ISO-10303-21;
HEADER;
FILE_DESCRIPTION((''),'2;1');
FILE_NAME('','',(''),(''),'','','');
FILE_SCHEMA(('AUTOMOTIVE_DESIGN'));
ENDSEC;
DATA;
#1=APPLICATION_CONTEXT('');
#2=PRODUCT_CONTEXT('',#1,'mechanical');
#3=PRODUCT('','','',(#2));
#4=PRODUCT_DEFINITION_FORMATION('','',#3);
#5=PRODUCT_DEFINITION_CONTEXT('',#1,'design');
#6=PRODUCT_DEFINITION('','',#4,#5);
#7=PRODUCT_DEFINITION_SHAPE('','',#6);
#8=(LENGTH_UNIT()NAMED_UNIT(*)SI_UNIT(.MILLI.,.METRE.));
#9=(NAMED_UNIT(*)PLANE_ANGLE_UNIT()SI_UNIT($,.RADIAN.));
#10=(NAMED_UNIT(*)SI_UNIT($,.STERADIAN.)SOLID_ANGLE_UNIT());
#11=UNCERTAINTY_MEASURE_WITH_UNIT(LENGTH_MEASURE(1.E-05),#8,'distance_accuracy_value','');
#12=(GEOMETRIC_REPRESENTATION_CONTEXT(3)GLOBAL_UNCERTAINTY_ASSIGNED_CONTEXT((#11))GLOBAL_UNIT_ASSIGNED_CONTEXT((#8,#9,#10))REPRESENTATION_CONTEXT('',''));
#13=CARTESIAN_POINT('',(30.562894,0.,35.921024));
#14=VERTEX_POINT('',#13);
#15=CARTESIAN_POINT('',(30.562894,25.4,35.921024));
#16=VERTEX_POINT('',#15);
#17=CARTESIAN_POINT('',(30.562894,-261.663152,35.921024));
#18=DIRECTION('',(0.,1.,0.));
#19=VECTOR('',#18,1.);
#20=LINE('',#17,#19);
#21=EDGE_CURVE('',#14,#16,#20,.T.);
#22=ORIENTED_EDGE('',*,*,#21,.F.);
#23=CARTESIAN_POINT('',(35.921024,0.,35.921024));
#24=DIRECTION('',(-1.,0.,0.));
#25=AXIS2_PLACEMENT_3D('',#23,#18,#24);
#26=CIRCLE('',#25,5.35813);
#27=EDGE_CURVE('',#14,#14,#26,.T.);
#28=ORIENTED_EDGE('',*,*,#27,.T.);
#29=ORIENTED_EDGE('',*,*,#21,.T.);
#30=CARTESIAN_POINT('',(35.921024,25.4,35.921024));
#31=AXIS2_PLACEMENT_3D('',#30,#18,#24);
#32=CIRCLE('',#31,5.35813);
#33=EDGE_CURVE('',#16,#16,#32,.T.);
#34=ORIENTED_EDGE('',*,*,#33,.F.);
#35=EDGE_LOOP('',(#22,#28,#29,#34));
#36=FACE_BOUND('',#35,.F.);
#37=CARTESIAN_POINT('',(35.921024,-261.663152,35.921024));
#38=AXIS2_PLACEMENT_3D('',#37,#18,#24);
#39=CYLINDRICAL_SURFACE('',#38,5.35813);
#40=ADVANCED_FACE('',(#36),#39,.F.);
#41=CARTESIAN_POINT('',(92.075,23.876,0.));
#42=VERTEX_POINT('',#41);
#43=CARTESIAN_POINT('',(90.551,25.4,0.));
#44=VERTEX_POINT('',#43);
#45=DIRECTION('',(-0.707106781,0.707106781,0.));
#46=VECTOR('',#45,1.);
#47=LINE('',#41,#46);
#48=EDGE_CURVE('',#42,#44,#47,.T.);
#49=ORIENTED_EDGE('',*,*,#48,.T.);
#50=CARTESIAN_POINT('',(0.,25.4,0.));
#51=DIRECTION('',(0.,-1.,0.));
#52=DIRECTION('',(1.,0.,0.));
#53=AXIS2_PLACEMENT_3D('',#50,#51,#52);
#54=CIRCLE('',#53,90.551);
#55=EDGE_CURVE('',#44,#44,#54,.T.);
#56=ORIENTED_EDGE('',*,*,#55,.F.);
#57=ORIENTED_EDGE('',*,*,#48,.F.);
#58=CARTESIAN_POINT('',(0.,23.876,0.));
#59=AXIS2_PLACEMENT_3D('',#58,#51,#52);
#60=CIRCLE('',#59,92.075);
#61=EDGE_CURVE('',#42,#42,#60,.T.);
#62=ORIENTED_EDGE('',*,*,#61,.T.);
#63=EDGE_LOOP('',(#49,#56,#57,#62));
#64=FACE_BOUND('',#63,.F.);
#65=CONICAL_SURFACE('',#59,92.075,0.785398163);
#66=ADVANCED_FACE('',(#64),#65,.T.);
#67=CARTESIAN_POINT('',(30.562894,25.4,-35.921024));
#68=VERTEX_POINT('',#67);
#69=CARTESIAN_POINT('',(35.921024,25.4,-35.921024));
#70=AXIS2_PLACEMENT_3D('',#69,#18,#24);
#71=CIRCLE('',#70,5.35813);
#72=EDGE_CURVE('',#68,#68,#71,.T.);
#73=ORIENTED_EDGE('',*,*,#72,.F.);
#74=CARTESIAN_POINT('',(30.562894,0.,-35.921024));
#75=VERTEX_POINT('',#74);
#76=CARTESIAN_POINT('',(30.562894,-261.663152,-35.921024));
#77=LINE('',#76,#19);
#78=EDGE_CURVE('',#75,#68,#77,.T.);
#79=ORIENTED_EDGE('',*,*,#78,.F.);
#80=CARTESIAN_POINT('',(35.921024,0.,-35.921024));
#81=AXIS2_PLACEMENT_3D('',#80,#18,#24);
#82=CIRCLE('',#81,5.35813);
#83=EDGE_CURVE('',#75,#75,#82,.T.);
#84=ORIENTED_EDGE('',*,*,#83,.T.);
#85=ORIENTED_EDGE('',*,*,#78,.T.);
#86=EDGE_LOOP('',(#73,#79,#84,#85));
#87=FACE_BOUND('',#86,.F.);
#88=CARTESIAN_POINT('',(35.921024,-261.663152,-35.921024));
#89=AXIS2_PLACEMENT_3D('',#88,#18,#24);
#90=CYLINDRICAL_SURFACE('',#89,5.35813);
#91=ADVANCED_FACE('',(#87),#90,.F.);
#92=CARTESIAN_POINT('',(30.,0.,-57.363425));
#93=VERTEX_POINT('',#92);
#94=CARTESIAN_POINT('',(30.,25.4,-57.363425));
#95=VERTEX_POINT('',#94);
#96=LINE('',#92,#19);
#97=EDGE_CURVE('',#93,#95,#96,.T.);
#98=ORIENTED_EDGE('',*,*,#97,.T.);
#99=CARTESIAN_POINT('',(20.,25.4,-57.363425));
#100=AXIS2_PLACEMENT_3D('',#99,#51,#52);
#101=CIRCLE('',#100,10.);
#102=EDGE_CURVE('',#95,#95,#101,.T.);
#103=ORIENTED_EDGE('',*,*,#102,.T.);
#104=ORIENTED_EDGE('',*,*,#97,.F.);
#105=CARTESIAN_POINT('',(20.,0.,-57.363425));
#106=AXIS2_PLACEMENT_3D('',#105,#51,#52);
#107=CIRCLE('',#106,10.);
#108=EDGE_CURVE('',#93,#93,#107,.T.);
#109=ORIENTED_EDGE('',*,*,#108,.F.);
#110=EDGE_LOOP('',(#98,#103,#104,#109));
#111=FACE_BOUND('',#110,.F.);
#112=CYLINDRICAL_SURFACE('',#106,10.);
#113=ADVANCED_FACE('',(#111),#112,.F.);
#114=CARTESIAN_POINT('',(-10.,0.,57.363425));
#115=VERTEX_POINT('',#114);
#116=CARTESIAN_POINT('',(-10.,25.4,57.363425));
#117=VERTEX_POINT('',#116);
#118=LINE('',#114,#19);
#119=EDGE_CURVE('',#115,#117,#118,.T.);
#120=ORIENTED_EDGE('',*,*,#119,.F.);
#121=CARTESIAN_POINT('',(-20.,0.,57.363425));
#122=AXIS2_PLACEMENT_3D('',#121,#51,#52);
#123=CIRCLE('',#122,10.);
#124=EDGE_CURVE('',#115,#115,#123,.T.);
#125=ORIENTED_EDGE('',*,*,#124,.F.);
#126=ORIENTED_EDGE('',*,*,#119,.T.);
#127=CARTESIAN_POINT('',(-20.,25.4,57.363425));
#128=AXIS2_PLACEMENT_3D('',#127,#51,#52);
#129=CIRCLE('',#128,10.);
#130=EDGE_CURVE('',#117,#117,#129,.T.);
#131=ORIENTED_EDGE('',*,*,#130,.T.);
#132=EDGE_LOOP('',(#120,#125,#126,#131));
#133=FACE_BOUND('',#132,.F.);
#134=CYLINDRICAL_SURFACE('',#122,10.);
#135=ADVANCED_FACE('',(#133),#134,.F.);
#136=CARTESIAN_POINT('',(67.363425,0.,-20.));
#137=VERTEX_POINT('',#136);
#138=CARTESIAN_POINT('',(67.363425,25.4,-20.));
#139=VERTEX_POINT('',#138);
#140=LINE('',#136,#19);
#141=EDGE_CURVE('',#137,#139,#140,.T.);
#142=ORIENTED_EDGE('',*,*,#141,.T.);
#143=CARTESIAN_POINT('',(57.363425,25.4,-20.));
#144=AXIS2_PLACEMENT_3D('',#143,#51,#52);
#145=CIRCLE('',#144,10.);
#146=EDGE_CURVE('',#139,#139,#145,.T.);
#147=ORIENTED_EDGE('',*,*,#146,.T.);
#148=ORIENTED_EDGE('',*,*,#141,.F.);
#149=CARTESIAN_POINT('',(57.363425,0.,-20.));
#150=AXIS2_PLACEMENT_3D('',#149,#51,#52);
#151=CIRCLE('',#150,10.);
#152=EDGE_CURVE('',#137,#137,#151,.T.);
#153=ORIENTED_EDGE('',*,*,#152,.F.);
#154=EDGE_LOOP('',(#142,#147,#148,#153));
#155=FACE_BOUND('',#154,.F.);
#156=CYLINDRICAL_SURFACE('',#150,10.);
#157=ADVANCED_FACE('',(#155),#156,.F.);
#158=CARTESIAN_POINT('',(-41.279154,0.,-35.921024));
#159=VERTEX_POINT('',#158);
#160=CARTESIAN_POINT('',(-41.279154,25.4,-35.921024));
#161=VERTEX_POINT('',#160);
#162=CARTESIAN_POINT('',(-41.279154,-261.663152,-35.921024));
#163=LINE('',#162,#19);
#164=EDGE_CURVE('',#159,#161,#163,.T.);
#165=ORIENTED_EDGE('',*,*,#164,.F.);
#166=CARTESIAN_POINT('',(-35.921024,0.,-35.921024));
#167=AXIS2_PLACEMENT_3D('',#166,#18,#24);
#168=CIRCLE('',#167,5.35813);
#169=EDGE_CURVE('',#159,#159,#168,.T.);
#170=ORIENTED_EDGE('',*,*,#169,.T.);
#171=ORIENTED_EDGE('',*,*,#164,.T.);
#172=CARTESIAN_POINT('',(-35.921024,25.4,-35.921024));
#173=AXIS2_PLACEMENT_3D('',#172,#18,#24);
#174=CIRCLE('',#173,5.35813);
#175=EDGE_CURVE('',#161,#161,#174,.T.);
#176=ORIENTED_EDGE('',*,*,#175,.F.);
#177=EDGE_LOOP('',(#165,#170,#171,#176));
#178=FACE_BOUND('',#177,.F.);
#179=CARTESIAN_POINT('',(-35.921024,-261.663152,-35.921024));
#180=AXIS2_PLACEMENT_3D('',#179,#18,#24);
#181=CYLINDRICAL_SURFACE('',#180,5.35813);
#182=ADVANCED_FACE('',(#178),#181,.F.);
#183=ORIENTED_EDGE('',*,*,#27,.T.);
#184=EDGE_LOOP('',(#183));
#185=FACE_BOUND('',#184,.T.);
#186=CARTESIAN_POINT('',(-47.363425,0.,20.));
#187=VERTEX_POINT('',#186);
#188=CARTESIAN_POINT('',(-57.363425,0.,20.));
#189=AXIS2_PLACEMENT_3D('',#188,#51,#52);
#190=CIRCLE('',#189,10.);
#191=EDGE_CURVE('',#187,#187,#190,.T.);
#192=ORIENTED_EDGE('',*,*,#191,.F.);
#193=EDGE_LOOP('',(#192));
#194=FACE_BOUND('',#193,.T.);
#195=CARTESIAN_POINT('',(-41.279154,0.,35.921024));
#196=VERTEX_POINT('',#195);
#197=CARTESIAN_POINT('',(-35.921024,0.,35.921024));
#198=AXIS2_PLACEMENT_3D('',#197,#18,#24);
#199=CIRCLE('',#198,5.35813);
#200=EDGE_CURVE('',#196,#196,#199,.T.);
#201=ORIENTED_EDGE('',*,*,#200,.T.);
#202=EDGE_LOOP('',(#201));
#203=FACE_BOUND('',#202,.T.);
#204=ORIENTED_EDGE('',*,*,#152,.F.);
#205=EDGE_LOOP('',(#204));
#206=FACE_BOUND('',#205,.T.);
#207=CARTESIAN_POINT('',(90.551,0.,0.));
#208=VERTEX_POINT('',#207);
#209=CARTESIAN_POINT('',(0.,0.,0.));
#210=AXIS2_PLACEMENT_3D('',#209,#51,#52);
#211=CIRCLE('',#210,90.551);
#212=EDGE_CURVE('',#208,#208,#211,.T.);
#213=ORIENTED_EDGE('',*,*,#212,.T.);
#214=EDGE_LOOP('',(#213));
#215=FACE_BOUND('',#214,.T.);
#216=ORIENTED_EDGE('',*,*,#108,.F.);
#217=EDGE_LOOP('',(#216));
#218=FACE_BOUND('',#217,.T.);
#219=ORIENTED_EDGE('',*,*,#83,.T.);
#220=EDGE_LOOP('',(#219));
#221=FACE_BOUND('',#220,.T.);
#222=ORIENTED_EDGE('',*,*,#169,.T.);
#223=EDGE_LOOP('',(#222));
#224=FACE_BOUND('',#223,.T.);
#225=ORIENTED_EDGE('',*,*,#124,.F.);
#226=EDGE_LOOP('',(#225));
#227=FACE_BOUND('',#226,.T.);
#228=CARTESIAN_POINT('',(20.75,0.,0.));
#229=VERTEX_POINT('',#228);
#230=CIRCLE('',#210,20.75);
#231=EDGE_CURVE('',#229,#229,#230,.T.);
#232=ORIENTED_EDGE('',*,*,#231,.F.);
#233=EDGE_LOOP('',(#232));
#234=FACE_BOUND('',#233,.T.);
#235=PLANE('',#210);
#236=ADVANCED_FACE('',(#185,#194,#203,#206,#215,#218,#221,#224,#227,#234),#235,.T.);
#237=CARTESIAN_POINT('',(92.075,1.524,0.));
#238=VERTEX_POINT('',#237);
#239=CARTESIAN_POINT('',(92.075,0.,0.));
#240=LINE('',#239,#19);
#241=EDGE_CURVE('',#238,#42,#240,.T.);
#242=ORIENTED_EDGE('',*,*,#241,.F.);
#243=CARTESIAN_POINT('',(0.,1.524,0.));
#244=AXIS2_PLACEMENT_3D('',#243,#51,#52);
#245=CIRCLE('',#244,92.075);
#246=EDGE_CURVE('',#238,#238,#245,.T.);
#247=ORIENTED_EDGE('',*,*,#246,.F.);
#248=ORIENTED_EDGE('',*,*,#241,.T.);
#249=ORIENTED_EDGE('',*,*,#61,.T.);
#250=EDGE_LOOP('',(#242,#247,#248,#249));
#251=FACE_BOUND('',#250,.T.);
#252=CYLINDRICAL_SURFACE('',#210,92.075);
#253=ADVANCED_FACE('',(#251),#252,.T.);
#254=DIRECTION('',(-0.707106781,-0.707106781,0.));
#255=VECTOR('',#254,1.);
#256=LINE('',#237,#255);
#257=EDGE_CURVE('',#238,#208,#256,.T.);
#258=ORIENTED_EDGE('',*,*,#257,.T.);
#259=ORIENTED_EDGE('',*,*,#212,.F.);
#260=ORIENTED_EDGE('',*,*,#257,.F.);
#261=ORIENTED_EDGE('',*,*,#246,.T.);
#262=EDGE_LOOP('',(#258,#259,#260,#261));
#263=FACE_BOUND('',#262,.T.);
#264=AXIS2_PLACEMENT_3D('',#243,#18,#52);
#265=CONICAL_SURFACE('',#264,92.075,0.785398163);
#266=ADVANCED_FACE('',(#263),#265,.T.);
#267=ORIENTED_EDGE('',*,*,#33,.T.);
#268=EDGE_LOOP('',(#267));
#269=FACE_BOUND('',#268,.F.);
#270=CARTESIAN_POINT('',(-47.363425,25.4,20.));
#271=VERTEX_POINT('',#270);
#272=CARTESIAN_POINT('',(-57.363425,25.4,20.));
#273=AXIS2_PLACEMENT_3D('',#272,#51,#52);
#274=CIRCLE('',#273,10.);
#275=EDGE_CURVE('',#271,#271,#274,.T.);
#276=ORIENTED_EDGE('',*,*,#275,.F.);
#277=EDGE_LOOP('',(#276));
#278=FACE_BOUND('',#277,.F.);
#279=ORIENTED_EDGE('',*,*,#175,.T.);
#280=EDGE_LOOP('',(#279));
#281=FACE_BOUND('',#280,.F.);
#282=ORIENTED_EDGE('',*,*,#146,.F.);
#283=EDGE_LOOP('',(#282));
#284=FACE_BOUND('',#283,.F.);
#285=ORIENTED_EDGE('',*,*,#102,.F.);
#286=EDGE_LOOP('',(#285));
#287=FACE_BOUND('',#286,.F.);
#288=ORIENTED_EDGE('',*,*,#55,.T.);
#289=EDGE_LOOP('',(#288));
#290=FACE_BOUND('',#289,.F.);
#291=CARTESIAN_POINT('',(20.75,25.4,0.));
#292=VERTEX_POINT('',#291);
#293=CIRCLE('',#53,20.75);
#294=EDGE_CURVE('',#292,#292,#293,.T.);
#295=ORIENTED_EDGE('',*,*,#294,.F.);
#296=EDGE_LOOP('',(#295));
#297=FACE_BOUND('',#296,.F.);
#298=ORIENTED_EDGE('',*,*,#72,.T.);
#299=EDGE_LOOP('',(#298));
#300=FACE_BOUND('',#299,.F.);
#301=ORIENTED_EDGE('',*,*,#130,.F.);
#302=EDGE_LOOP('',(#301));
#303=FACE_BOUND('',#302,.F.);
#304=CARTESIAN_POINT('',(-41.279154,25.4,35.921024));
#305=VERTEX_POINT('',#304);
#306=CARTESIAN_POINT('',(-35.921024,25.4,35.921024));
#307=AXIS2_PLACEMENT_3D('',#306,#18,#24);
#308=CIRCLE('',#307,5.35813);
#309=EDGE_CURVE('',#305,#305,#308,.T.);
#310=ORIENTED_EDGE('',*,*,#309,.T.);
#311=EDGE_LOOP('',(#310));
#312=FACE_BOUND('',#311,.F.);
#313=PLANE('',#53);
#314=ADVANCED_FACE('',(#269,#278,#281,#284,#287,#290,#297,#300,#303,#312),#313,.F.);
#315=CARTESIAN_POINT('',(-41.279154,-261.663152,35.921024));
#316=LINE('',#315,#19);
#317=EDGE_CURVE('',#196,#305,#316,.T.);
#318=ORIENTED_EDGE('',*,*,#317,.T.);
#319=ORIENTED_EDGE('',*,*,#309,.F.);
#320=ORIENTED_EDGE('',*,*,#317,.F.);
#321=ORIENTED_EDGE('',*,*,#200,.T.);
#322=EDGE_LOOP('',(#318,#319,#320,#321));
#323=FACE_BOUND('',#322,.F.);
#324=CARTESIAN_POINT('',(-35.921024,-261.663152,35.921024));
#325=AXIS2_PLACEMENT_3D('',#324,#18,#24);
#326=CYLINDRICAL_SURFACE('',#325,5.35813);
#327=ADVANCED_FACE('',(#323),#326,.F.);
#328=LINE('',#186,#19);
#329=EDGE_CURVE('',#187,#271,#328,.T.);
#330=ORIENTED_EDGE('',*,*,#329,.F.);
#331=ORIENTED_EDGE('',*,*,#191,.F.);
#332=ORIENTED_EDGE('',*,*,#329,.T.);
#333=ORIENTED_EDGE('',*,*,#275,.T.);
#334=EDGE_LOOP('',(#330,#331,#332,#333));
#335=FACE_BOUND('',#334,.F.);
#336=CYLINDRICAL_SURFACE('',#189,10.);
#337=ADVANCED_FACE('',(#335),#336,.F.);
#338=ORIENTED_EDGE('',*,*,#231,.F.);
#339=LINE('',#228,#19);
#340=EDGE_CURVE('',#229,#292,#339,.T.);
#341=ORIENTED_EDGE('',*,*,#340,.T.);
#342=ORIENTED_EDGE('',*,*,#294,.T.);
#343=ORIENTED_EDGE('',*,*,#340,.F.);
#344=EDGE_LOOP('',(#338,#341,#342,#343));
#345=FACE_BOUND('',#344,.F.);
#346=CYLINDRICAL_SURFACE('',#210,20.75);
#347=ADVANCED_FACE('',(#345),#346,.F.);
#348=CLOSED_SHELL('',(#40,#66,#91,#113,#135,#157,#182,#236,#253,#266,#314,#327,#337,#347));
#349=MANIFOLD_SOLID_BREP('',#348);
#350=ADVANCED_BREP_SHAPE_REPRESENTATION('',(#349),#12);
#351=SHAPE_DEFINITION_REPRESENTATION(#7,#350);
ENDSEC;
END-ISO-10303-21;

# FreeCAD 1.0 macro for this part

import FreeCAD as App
import Part
import Sketcher
Q = App.Units.Quantity


def edges_at(feature, points):
    """Names of the edges that pass closest to the given points."""
    edges = feature.Shape.Edges
    near = lambda p: min(range(len(edges)), key=lambda i: edges[i].distToShape(Part.Vertex(*p))[0])
    return sorted({f"Edge{near(p) + 1}" for p in points})

doc = App.newDocument("Part")
body = doc.addObject("PartDesign::Body", "Body")

# Sketch on XZ plane
sketch1 = body.newObject("Sketcher::SketchObject", "Sketch")
sketch1.AttachmentSupport = (doc.getObject("XZ_Plane"), [""])
sketch1.MapMode = "FlatFace"
sketch1.addGeometry(Part.Circle(App.Vector(0, 0, 0), App.Vector(0, 0, 1), 92), False)
sketch1.addGeometry(Part.Circle(App.Vector(0, 0, 0), App.Vector(0, 0, 1), 21), False)
sketch1.addConstraint(Sketcher.Constraint("Coincident", 0, 3, -1, 1))
sketch1.addConstraint(Sketcher.Constraint("Coincident", 1, 3, -1, 1))
sketch1.addConstraint(Sketcher.Constraint("Diameter", 0, Q("7.25 in")))
sketch1.addConstraint(Sketcher.Constraint("Diameter", 1, Q("41.5 mm")))
pad1 = body.newObject("PartDesign::Pad", "Pad")
pad1.Profile = sketch1
pad1.Length = Q("1 in")
pad1.Reversed = True

# Sketch on XZ plane
sketch2 = body.newObject("Sketcher::SketchObject", "Sketch001")
sketch2.AttachmentSupport = (doc.getObject("XZ_Plane"), [""])
sketch2.MapMode = "FlatFace"
sketch2.addGeometry(Part.Circle(App.Vector(-57, 20, 0), App.Vector(0, 0, 1), 10), False)
sketch2.addGeometry(Part.Circle(App.Vector(-20, 57, 0), App.Vector(0, 0, 1), 10), False)
sketch2.addGeometry(Part.Circle(App.Vector(57, -20, 0), App.Vector(0, 0, 1), 10), False)
sketch2.addGeometry(Part.Circle(App.Vector(20, -57, 0), App.Vector(0, 0, 1), 10), False)
sketch2.addConstraint(Sketcher.Constraint("Equal", 0, 1))
sketch2.addConstraint(Sketcher.Constraint("Equal", 1, 2))
sketch2.addConstraint(Sketcher.Constraint("Equal", 2, 3))
sketch2.addConstraint(Sketcher.Constraint("Symmetric", 0, 3, 2, 3, -1, 1))
sketch2.addConstraint(Sketcher.Constraint("Symmetric", 1, 3, 3, 3, -1, 1))
sketch2.addConstraint(Sketcher.Constraint("Diameter", 0, Q("20 mm")))
sketch2.addConstraint(Sketcher.Constraint("DistanceY", -1, 1, 0, 3, Q("20 mm")))
sketch2.addConstraint(Sketcher.Constraint("DistanceX", 1, 3, -1, 1, Q("20 mm")))
sketch2.addConstraint(Sketcher.Constraint("DistanceX", 0, 3, 2, 3, Q("114.72685 mm")))
sketch2.addConstraint(Sketcher.Constraint("DistanceY", 3, 3, 1, 3, Q("114.72685 mm")))
pocket1 = body.newObject("PartDesign::Pocket", "Pocket")
pocket1.Profile = sketch2
pocket1.Length = Q("1 in")

# Sketch on XZ plane
sketch3 = body.newObject("Sketcher::SketchObject", "Sketch002")
sketch3.AttachmentSupport = (doc.getObject("XZ_Plane"), [""])
sketch3.MapMode = "FlatFace"
sketch3.addGeometry(Part.Circle(App.Vector(-36, 36, 0), App.Vector(0, 0, 1), 5), False)
sketch3.addGeometry(Part.Circle(App.Vector(36, 36, 0), App.Vector(0, 0, 1), 5), False)
sketch3.addGeometry(Part.Circle(App.Vector(36, -36, 0), App.Vector(0, 0, 1), 5), False)
sketch3.addGeometry(Part.Circle(App.Vector(-36, -36, 0), App.Vector(0, 0, 1), 5), False)
sketch3.addConstraint(Sketcher.Constraint("Equal", 0, 1))
sketch3.addConstraint(Sketcher.Constraint("Equal", 1, 2))
sketch3.addConstraint(Sketcher.Constraint("Equal", 2, 3))
sketch3.addConstraint(Sketcher.Constraint("Symmetric", 0, 3, 2, 3, -1, 1))
sketch3.addConstraint(Sketcher.Constraint("Symmetric", 1, 3, 3, 3, -1, 1))
sketch3.addConstraint(Sketcher.Constraint("Symmetric", 0, 3, 1, 3, -2))
sketch3.addConstraint(Sketcher.Constraint("Diameter", 0, Q("0.4219 in")))
sketch3.addConstraint(Sketcher.Constraint("DistanceX", 0, 3, 1, 3, Q("71.842049 mm")))
sketch3.addConstraint(Sketcher.Constraint("DistanceY", 2, 3, 1, 3, Q("71.842049 mm")))
doc.recompute()
hole = body.newObject("PartDesign::Hole", "Hole")
hole.Profile = sketch3
hole.ThreadType = "None"
hole.Diameter = Q("0.4219 in")
hole.DepthType = "ThroughAll"
doc.recompute()

chamfer = body.newObject("PartDesign::Chamfer", "Chamfer")
chamfer.Base = (hole, edges_at(hole, [(92.075, 12.7, 0), (-92.075, 0, 0), (-92.075, 25.4, 0)]))
chamfer.Size = Q("0.06 in")

doc.recompute()
